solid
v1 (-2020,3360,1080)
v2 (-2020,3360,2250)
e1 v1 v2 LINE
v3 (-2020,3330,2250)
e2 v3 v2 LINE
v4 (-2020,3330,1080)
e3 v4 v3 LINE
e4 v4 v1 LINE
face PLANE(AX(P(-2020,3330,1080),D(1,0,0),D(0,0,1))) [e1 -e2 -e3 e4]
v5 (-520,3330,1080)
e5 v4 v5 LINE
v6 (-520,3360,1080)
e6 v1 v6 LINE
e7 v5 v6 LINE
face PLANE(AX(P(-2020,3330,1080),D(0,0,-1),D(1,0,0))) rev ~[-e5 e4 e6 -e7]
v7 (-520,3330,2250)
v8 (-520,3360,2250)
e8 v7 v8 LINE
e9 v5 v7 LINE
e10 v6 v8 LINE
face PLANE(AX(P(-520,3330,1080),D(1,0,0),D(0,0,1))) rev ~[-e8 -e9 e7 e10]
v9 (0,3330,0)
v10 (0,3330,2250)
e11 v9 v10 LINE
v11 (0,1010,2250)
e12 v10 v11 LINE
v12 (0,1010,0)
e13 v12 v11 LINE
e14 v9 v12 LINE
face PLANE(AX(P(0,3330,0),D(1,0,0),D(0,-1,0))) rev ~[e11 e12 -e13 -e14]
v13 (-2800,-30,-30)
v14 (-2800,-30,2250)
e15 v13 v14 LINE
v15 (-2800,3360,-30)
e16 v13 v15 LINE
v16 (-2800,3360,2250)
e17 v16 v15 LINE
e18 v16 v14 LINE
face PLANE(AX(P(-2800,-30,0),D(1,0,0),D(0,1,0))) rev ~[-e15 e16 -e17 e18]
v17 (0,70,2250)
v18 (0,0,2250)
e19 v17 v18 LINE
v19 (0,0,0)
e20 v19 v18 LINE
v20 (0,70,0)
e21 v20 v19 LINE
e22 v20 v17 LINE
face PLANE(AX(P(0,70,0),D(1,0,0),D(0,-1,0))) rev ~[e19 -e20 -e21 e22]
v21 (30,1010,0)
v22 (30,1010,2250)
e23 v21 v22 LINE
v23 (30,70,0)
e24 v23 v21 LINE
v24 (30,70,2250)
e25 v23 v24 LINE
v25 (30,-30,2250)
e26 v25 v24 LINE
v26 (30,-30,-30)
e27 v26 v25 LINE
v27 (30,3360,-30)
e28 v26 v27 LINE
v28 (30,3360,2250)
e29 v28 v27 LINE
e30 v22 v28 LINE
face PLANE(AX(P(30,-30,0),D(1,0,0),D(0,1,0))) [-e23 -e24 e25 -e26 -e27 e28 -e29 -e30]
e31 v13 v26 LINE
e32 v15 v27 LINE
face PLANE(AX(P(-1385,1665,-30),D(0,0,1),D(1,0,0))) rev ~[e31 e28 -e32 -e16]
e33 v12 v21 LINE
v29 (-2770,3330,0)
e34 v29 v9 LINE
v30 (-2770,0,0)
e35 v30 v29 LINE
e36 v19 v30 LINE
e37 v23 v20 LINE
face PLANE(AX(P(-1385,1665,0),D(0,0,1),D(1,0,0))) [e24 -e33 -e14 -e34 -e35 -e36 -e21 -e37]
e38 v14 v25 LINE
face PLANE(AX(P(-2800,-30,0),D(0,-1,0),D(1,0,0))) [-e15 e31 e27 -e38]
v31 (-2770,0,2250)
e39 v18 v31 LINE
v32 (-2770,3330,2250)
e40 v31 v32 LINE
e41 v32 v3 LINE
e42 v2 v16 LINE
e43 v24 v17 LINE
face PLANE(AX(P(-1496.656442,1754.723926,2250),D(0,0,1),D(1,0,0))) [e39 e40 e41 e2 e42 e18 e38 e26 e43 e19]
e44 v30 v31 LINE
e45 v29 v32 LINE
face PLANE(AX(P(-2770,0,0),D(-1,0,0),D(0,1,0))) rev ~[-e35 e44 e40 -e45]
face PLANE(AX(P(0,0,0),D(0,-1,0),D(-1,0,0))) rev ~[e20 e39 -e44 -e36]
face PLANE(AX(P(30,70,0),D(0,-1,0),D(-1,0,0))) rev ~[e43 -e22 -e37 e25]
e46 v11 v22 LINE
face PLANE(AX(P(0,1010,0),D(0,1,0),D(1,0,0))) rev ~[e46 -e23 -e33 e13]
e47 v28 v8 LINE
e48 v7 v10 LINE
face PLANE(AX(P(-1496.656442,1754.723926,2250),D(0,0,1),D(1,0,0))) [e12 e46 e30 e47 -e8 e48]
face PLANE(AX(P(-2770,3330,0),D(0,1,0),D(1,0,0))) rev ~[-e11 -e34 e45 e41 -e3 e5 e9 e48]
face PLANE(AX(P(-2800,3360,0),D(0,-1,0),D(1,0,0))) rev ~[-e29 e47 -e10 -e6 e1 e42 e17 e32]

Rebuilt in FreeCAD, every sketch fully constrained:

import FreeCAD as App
import Part
import Sketcher

V = App.Vector

doc = App.newDocument("Part")
body = doc.addObject("PartDesign::Body", "Body")

# Sketch on XY plane
sketch1 = body.newObject("Sketcher::SketchObject", "Sketch")
sketch1.AttachmentSupport = (doc.getObject("XY_Plane"), [""])
sketch1.MapMode = "FlatFace"
sketch1.addGeometry([
    Part.LineSegment(V(0, 70, 0), V(0, 0, 0)),  # 0
    Part.LineSegment(V(0, 0, 0), V(-2770, 0, 0)),  # 1
    Part.LineSegment(V(-2770, 0, 0), V(-2770, 3330, 0)),  # 2
    Part.LineSegment(V(-2770, 3330, 0), V(0, 3330, 0)),  # 3
    Part.LineSegment(V(0, 3330, 0), V(0, 1010, 0)),  # 4
    Part.LineSegment(V(0, 1010, 0), V(30, 1010, 0)),  # 5
    Part.LineSegment(V(30, 1010, 0), V(30, 3360, 0)),  # 6
    Part.LineSegment(V(30, 3360, 0), V(-2800, 3360, 0)),  # 7
    Part.LineSegment(V(-2800, 3360, 0), V(-2800, -30, 0)),  # 8
    Part.LineSegment(V(-2800, -30, 0), V(30, -30, 0)),  # 9
    Part.LineSegment(V(30, -30, 0), V(30, 70, 0)),  # 10
    Part.LineSegment(V(30, 70, 0), V(0, 70, 0)),  # 11
], False)
sketch1.addConstraint([
    Sketcher.Constraint("Coincident", 0, 2, 1, 1),
    Sketcher.Constraint("Coincident", 1, 2, 2, 1),
    Sketcher.Constraint("Coincident", 2, 2, 3, 1),
    Sketcher.Constraint("Coincident", 3, 2, 4, 1),
    Sketcher.Constraint("Coincident", 4, 2, 5, 1),
    Sketcher.Constraint("Coincident", 5, 2, 6, 1),
    Sketcher.Constraint("Coincident", 6, 2, 7, 1),
    Sketcher.Constraint("Coincident", 7, 2, 8, 1),
    Sketcher.Constraint("Coincident", 8, 2, 9, 1),
    Sketcher.Constraint("Coincident", 9, 2, 10, 1),
    Sketcher.Constraint("Coincident", 10, 2, 11, 1),
    Sketcher.Constraint("Coincident", 11, 2, 0, 1),
    Sketcher.Constraint("Vertical", 0),
    Sketcher.Constraint("Horizontal", 1),
    Sketcher.Constraint("Vertical", 2),
    Sketcher.Constraint("Horizontal", 3),
    Sketcher.Constraint("Vertical", 4),
    Sketcher.Constraint("Horizontal", 5),
    Sketcher.Constraint("Vertical", 6),
    Sketcher.Constraint("Horizontal", 7),
    Sketcher.Constraint("Vertical", 8),
    Sketcher.Constraint("Horizontal", 9),
    Sketcher.Constraint("Vertical", 10),
    Sketcher.Constraint("Horizontal", 11),
    Sketcher.Constraint("Coincident", 0, 2, -1, 1),
    Sketcher.Constraint("PointOnObject", 3, 2, -2),
    Sketcher.Constraint("Vertical", 6, 2, 9, 2),
    Sketcher.Constraint("DistanceX", 1, 2, 1, 1, 2770.0),
    Sketcher.Constraint("DistanceX", 5, 1, 5, 2, 30.0),
    Sketcher.Constraint("DistanceX", 7, 2, 7, 1, 2830.0),
    Sketcher.Constraint("DistanceY", 0, 2, 0, 1, 70.0),
    Sketcher.Constraint("DistanceY", 2, 1, 2, 2, 3330.0),
    Sketcher.Constraint("DistanceY", 4, 2, 4, 1, 2320.0),
    Sketcher.Constraint("DistanceY", 6, 1, 6, 2, 2350.0),
    Sketcher.Constraint("DistanceY", 8, 2, 8, 1, 3390.0),
])
pad1 = body.newObject("PartDesign::Pad", "Pad")
pad1.Profile = sketch1
pad1.Length = 2250

# Sketch on XY plane
sketch2 = body.newObject("Sketcher::SketchObject", "Sketch001")
sketch2.AttachmentSupport = (doc.getObject("XY_Plane"), [""])
sketch2.MapMode = "FlatFace"
sketch2.addGeometry([
    Part.LineSegment(V(-2800, 3360, 0), V(-2800, -30, 0)),
    Part.LineSegment(V(-2800, -30, 0), V(30, -30, 0)),
    Part.LineSegment(V(30, -30, 0), V(30, 3360, 0)),
    Part.LineSegment(V(30, 3360, 0), V(-2800, 3360, 0)),
], False)
sketch2.addConstraint([
    Sketcher.Constraint("Coincident", 0, 2, 1, 1),
    Sketcher.Constraint("Coincident", 1, 2, 2, 1),
    Sketcher.Constraint("Coincident", 2, 2, 3, 1),
    Sketcher.Constraint("Coincident", 3, 2, 0, 1),
    Sketcher.Constraint("Vertical", 0),
    Sketcher.Constraint("Horizontal", 1),
    Sketcher.Constraint("Vertical", 2),
    Sketcher.Constraint("Horizontal", 3),
    Sketcher.Constraint("DistanceX", 1, 1, 1, 2, 2830.0),
    Sketcher.Constraint("DistanceY", 0, 2, 0, 1, 3390.0),
    Sketcher.Constraint("DistanceX", 0, 2, -1, 1, 2800.0),
    Sketcher.Constraint("DistanceY", 0, 2, -1, 1, 30.0),
])
pad2 = body.newObject("PartDesign::Pad", "Pad001")
pad2.Profile = sketch2
pad2.Length = 30
pad2.Reversed = True

# Sketch on XZ plane
sketch3 = body.newObject("Sketcher::SketchObject", "Sketch002")
sketch3.AttachmentSupport = (doc.getObject("XZ_Plane"), [""])
sketch3.MapMode = "FlatFace"
sketch3.AttachmentOffset = App.Placement(V(0, 0, -3330), App.Rotation())
sketch3.addGeometry([
    Part.LineSegment(V(-2020, 2250, 0), V(-2020, 1080, 0)),
    Part.LineSegment(V(-2020, 1080, 0), V(-520, 1080, 0)),
    Part.LineSegment(V(-520, 1080, 0), V(-520, 2250, 0)),
    Part.LineSegment(V(-520, 2250, 0), V(-2020, 2250, 0)),
], False)
sketch3.addConstraint([
    Sketcher.Constraint("Coincident", 0, 2, 1, 1),
    Sketcher.Constraint("Coincident", 1, 2, 2, 1),
    Sketcher.Constraint("Coincident", 2, 2, 3, 1),
    Sketcher.Constraint("Coincident", 3, 2, 0, 1),
    Sketcher.Constraint("Vertical", 0),
    Sketcher.Constraint("Horizontal", 1),
    Sketcher.Constraint("Vertical", 2),
    Sketcher.Constraint("Horizontal", 3),
    Sketcher.Constraint("DistanceX", 1, 1, 1, 2, 1500.0),
    Sketcher.Constraint("DistanceY", 0, 2, 0, 1, 1170.0),
    Sketcher.Constraint("DistanceX", 0, 2, -1, 1, 2020.0),
    Sketcher.Constraint("DistanceY", -1, 1, 0, 2, 1080.0),
])
pocket1 = body.newObject("PartDesign::Pocket", "Pocket")
pocket1.Profile = sketch3
pocket1.Type = "ThroughAll"

doc.recompute()
